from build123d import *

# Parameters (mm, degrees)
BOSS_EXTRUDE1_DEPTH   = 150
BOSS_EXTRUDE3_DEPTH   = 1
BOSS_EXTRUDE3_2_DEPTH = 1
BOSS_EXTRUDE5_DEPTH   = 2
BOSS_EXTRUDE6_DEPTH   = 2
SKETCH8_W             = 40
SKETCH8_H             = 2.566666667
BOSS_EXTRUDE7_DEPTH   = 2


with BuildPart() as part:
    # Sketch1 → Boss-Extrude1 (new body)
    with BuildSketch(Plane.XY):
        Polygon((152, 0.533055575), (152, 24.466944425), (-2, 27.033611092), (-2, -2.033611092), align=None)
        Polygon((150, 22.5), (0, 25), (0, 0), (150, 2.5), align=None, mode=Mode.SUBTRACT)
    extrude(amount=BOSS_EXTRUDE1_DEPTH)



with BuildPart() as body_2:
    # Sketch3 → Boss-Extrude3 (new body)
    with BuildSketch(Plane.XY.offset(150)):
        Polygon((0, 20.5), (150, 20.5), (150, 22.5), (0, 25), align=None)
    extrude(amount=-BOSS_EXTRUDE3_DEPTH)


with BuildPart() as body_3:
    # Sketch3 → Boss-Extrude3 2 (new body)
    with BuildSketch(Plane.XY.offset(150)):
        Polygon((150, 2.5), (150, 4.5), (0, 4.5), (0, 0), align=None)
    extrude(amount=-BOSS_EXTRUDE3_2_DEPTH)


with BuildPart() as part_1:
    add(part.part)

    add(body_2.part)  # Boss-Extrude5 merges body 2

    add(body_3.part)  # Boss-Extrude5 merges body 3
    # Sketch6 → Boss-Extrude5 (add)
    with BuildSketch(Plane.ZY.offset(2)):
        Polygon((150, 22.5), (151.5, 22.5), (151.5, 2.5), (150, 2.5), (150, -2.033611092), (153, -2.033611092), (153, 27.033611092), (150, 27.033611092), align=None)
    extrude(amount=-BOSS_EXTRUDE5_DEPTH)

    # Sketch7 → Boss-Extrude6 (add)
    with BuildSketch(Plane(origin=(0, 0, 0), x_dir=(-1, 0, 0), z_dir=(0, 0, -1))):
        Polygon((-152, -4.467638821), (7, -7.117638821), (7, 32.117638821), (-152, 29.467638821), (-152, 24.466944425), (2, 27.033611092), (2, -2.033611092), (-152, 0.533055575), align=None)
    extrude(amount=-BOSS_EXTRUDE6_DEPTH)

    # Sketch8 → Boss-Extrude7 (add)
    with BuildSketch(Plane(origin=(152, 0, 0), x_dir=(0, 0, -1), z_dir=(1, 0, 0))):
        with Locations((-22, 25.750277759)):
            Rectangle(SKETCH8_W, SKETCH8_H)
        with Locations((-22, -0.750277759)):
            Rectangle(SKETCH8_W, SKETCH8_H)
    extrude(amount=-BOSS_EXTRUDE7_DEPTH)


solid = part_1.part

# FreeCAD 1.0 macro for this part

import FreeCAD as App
import Part
import Sketcher

V = App.Vector

doc = App.newDocument("Part")
body = doc.addObject("PartDesign::Body", "Body")

# Sketch on XY plane
sketch1 = body.newObject("Sketcher::SketchObject", "Sketch")
sketch1.AttachmentSupport = (doc.getObject("XY_Plane"), [""])
sketch1.MapMode = "FlatFace"
sketch1.addGeometry(Part.LineSegment(V(152, 1, 0), V(152, 24, 0)), False)
sketch1.addGeometry(Part.LineSegment(V(152, 24, 0), V(-2, 27, 0)), False)
sketch1.addGeometry(Part.LineSegment(V(-2, 27, 0), V(-2, -2, 0)), False)
sketch1.addGeometry(Part.LineSegment(V(-2, -2, 0), V(152, 1, 0)), False)
sketch1.addGeometry(Part.LineSegment(V(0, 25, 0), V(150, 22, 0)), False)
sketch1.addGeometry(Part.LineSegment(V(150, 22, 0), V(150, 2, 0)), False)
sketch1.addGeometry(Part.LineSegment(V(150, 2, 0), V(0, 0, 0)), False)
sketch1.addGeometry(Part.LineSegment(V(0, 0, 0), V(0, 25, 0)), False)
sketch1.addConstraint(Sketcher.Constraint("Coincident", 0, 2, 1, 1))
sketch1.addConstraint(Sketcher.Constraint("Coincident", 1, 2, 2, 1))
sketch1.addConstraint(Sketcher.Constraint("Coincident", 2, 2, 3, 1))
sketch1.addConstraint(Sketcher.Constraint("Coincident", 3, 2, 0, 1))
sketch1.addConstraint(Sketcher.Constraint("Coincident", 4, 2, 5, 1))
sketch1.addConstraint(Sketcher.Constraint("Coincident", 5, 2, 6, 1))
sketch1.addConstraint(Sketcher.Constraint("Coincident", 6, 2, 7, 1))
sketch1.addConstraint(Sketcher.Constraint("Coincident", 7, 2, 4, 1))
sketch1.addConstraint(Sketcher.Constraint("Vertical", 0))
sketch1.addConstraint(Sketcher.Constraint("Vertical", 2))
sketch1.addConstraint(Sketcher.Constraint("Vertical", 5))
sketch1.addConstraint(Sketcher.Constraint("Vertical", 7))
sketch1.addConstraint(Sketcher.Constraint("Coincident", 6, 2, -1, 1))
sketch1.addConstraint(Sketcher.Constraint("Parallel", 1, 4))
sketch1.addConstraint(Sketcher.Constraint("Parallel", 3, 6))
sketch1.addConstraint(Sketcher.Constraint("Equal", 1, 3))
sketch1.addConstraint(Sketcher.Constraint("DistanceY", 5, 2, 5, 1, 20.0))
sketch1.addConstraint(Sketcher.Constraint("DistanceY", 7, 1, 7, 2, 25.0))
sketch1.addConstraint(Sketcher.Constraint("DistanceX", -1, 1, 0, 2, 152.0))
sketch1.addConstraint(Sketcher.Constraint("DistanceX", 1, 2, -1, 1, 2.0))
sketch1.addConstraint(Sketcher.Constraint("DistanceX", -1, 1, 4, 2, 150.0))
sketch1.addConstraint(Sketcher.Constraint("DistanceY", 0, 1, 0, 2, 23.933889))
sketch1.addConstraint(Sketcher.Constraint("DistanceY", -1, 1, 1, 2, 27.033611))
pad1 = body.newObject("PartDesign::Pad", "Pad")
pad1.Profile = sketch1
pad1.Length = 150
body2 = doc.addObject("PartDesign::Body", "Body001")

# Sketch on XY plane
sketch2 = body2.newObject("Sketcher::SketchObject", "Sketch001")
sketch2.AttachmentSupport = (doc.getObject("XY_Plane001"), [""])
sketch2.MapMode = "FlatFace"
sketch2.AttachmentOffset = App.Placement(V(0, 0, 150), App.Rotation())
sketch2.addGeometry(Part.LineSegment(V(0, 20.5, 0), V(150, 20.5, 0)), False)
sketch2.addGeometry(Part.LineSegment(V(150, 20.5, 0), V(150, 22.5, 0)), False)
sketch2.addGeometry(Part.LineSegment(V(150, 22.5, 0), V(0, 25, 0)), False)
sketch2.addGeometry(Part.LineSegment(V(0, 25, 0), V(0, 20.5, 0)), False)
sketch2.addConstraint(Sketcher.Constraint("Coincident", 0, 2, 1, 1))
sketch2.addConstraint(Sketcher.Constraint("Coincident", 1, 2, 2, 1))
sketch2.addConstraint(Sketcher.Constraint("Coincident", 2, 2, 3, 1))
sketch2.addConstraint(Sketcher.Constraint("Coincident", 3, 2, 0, 1))
sketch2.addConstraint(Sketcher.Constraint("Horizontal", 0))
sketch2.addConstraint(Sketcher.Constraint("Vertical", 1))
sketch2.addConstraint(Sketcher.Constraint("Vertical", 3))
sketch2.addConstraint(Sketcher.Constraint("PointOnObject", 2, 2, -2))
sketch2.addConstraint(Sketcher.Constraint("DistanceX", 0, 1, 0, 2, 150.0))
sketch2.addConstraint(Sketcher.Constraint("DistanceY", 1, 1, 1, 2, 2.0))
sketch2.addConstraint(Sketcher.Constraint("DistanceY", 3, 2, 3, 1, 4.5))
sketch2.addConstraint(Sketcher.Constraint("DistanceY", -1, 1, 2, 2, 25.0))
pad2 = body2.newObject("PartDesign::Pad", "Pad001")
pad2.Profile = sketch2
pad2.Length = 1
pad2.Reversed = True
body3 = doc.addObject("PartDesign::Body", "Body002")

# Sketch on XY plane
sketch3 = body3.newObject("Sketcher::SketchObject", "Sketch002")
sketch3.AttachmentSupport = (doc.getObject("XY_Plane002"), [""])
sketch3.MapMode = "FlatFace"
sketch3.AttachmentOffset = App.Placement(V(0, 0, 150), App.Rotation())
sketch3.addGeometry(Part.LineSegment(V(150, 2.5, 0), V(150, 4.5, 0)), False)
sketch3.addGeometry(Part.LineSegment(V(150, 4.5, 0), V(0, 4.5, 0)), False)
sketch3.addGeometry(Part.LineSegment(V(0, 4.5, 0), V(0, 0, 0)), False)
sketch3.addGeometry(Part.LineSegment(V(0, 0, 0), V(150, 2.5, 0)), False)
sketch3.addConstraint(Sketcher.Constraint("Coincident", 0, 2, 1, 1))
sketch3.addConstraint(Sketcher.Constraint("Coincident", 1, 2, 2, 1))
sketch3.addConstraint(Sketcher.Constraint("Coincident", 2, 2, 3, 1))
sketch3.addConstraint(Sketcher.Constraint("Coincident", 3, 2, 0, 1))
sketch3.addConstraint(Sketcher.Constraint("Vertical", 0))
sketch3.addConstraint(Sketcher.Constraint("Horizontal", 1))
sketch3.addConstraint(Sketcher.Constraint("Vertical", 2))
sketch3.addConstraint(Sketcher.Constraint("Coincident", 2, 2, -1, 1))
sketch3.addConstraint(Sketcher.Constraint("DistanceX", 1, 2, 1, 1, 150.0))
sketch3.addConstraint(Sketcher.Constraint("DistanceY", 0, 1, 0, 2, 2.0))
sketch3.addConstraint(Sketcher.Constraint("DistanceY", 2, 2, 2, 1, 4.5))
pad3 = body3.newObject("PartDesign::Pad", "Pad002")
pad3.Profile = sketch3
pad3.Length = 1
pad3.Reversed = True
doc.recompute()

boolean = body.newObject("PartDesign::Boolean", "Boolean")
boolean.Type = "Fuse"
boolean.addObjects([body2])
doc.recompute()

boolean2 = body.newObject("PartDesign::Boolean", "Boolean001")
boolean2.Type = "Fuse"
boolean2.addObjects([body3])

# Sketch on YZ plane
sketch4 = body.newObject("Sketcher::SketchObject", "Sketch003")
sketch4.AttachmentSupport = (doc.getObject("YZ_Plane"), [""])
sketch4.MapMode = "FlatFace"
sketch4.AttachmentOffset = App.Placement(V(0, 0, -2), App.Rotation())
sketch4.addGeometry(Part.LineSegment(V(22.5, 150, 0), V(22.5, 151.5, 0)), False)
sketch4.addGeometry(Part.LineSegment(V(22.5, 151.5, 0), V(2.5, 151.5, 0)), False)
sketch4.addGeometry(Part.LineSegment(V(2.5, 151.5, 0), V(2.5, 150, 0)), False)
sketch4.addGeometry(Part.LineSegment(V(2.5, 150, 0), V(-2, 150, 0)), False)
sketch4.addGeometry(Part.LineSegment(V(-2, 150, 0), V(-2, 153, 0)), False)
sketch4.addGeometry(Part.LineSegment(V(-2, 153, 0), V(27, 153, 0)), False)
sketch4.addGeometry(Part.LineSegment(V(27, 153, 0), V(27, 150, 0)), False)
sketch4.addGeometry(Part.LineSegment(V(27, 150, 0), V(22.5, 150, 0)), False)
sketch4.addConstraint(Sketcher.Constraint("Coincident", 0, 2, 1, 1))
sketch4.addConstraint(Sketcher.Constraint("Coincident", 1, 2, 2, 1))
sketch4.addConstraint(Sketcher.Constraint("Coincident", 2, 2, 3, 1))
sketch4.addConstraint(Sketcher.Constraint("Coincident", 3, 2, 4, 1))
sketch4.addConstraint(Sketcher.Constraint("Coincident", 4, 2, 5, 1))
sketch4.addConstraint(Sketcher.Constraint("Coincident", 5, 2, 6, 1))
sketch4.addConstraint(Sketcher.Constraint("Coincident", 6, 2, 7, 1))
sketch4.addConstraint(Sketcher.Constraint("Coincident", 7, 2, 0, 1))
sketch4.addConstraint(Sketcher.Constraint("Vertical", 0))
sketch4.addConstraint(Sketcher.Constraint("Horizontal", 1))
sketch4.addConstraint(Sketcher.Constraint("Vertical", 2))
sketch4.addConstraint(Sketcher.Constraint("Horizontal", 3))
sketch4.addConstraint(Sketcher.Constraint("Vertical", 4))
sketch4.addConstraint(Sketcher.Constraint("Horizontal", 5))
sketch4.addConstraint(Sketcher.Constraint("Vertical", 6))
sketch4.addConstraint(Sketcher.Constraint("Horizontal", 7))
sketch4.addConstraint(Sketcher.Constraint("Horizontal", 3, 2, 6, 2))
sketch4.addConstraint(Sketcher.Constraint("Equal", 3, 7))
sketch4.addConstraint(Sketcher.Constraint("DistanceX", 1, 2, 1, 1, 20.0))
sketch4.addConstraint(Sketcher.Constraint("DistanceY", 4, 1, 4, 2, 3.0))
sketch4.addConstraint(Sketcher.Constraint("DistanceY", 0, 1, 0, 2, 1.5))
sketch4.addConstraint(Sketcher.Constraint("DistanceY", -1, 1, 2, 2, 150.0))
sketch4.addConstraint(Sketcher.Constraint("DistanceX", -1, 1, 0, 2, 22.5))
sketch4.addConstraint(Sketcher.Constraint("DistanceX", 3, 2, 3, 1, 4.533611))
pad4 = body.newObject("PartDesign::Pad", "Pad003")
pad4.Profile = sketch4
pad4.Length = 2

# Sketch on XY plane
sketch5 = body.newObject("Sketcher::SketchObject", "Sketch004")
sketch5.AttachmentSupport = (doc.getObject("XY_Plane"), [""])
sketch5.MapMode = "FlatFace"
sketch5.addGeometry(Part.LineSegment(V(152, -4, 0), V(-7, -7, 0)), False)
sketch5.addGeometry(Part.LineSegment(V(-7, -7, 0), V(-7, 32, 0)), False)
sketch5.addGeometry(Part.LineSegment(V(-7, 32, 0), V(152, 29, 0)), False)
sketch5.addGeometry(Part.LineSegment(V(152, 29, 0), V(152, 24, 0)), False)
sketch5.addGeometry(Part.LineSegment(V(152, 24, 0), V(-2, 27, 0)), False)
sketch5.addGeometry(Part.LineSegment(V(-2, 27, 0), V(-2, -2, 0)), False)
sketch5.addGeometry(Part.LineSegment(V(-2, -2, 0), V(152, 1, 0)), False)
sketch5.addGeometry(Part.LineSegment(V(152, 1, 0), V(152, -4, 0)), False)
sketch5.addConstraint(Sketcher.Constraint("Coincident", 0, 2, 1, 1))
sketch5.addConstraint(Sketcher.Constraint("Coincident", 1, 2, 2, 1))
sketch5.addConstraint(Sketcher.Constraint("Coincident", 2, 2, 3, 1))
sketch5.addConstraint(Sketcher.Constraint("Coincident", 3, 2, 4, 1))
sketch5.addConstraint(Sketcher.Constraint("Coincident", 4, 2, 5, 1))
sketch5.addConstraint(Sketcher.Constraint("Coincident", 5, 2, 6, 1))
sketch5.addConstraint(Sketcher.Constraint("Coincident", 6, 2, 7, 1))
sketch5.addConstraint(Sketcher.Constraint("Coincident", 7, 2, 0, 1))
sketch5.addConstraint(Sketcher.Constraint("Vertical", 1))
sketch5.addConstraint(Sketcher.Constraint("Vertical", 3))
sketch5.addConstraint(Sketcher.Constraint("Vertical", 5))
sketch5.addConstraint(Sketcher.Constraint("Vertical", 7))
sketch5.addConstraint(Sketcher.Constraint("Parallel", 2, 4))
sketch5.addConstraint(Sketcher.Constraint("Parallel", 0, 6))
sketch5.addConstraint(Sketcher.Constraint("Vertical", 3, 2, 6, 2))
sketch5.addConstraint(Sketcher.Constraint("Equal", 3, 7))
sketch5.addConstraint(Sketcher.Constraint("Equal", 0, 2))
sketch5.addConstraint(Sketcher.Constraint("DistanceX", 0, 2, -1, 1, 7.0))
sketch5.addConstraint(Sketcher.Constraint("DistanceX", -1, 1, 2, 2, 152.0))
sketch5.addConstraint(Sketcher.Constraint("DistanceX", 4, 2, -1, 1, 2.0))
sketch5.addConstraint(Sketcher.Constraint("DistanceY", 2, 2, 1, 2, 2.65))
sketch5.addConstraint(Sketcher.Constraint("DistanceY", 1, 1, 1, 2, 39.235278))
sketch5.addConstraint(Sketcher.Constraint("DistanceY", 3, 2, 3, 1, 5.000694))
sketch5.addConstraint(Sketcher.Constraint("DistanceY", 0, 2, -1, 1, 7.117639))
pad5 = body.newObject("PartDesign::Pad", "Pad004")
pad5.Profile = sketch5
pad5.Length = 2

# Sketch on YZ plane
sketch6 = body.newObject("Sketcher::SketchObject", "Sketch005")
sketch6.AttachmentSupport = (doc.getObject("YZ_Plane"), [""])
sketch6.MapMode = "FlatFace"
sketch6.AttachmentOffset = App.Placement(V(0, 0, 152), App.Rotation())
sketch6.addGeometry(Part.LineSegment(V(27, 42, 0), V(24.5, 42, 0)), False)
sketch6.addGeometry(Part.LineSegment(V(24.5, 42, 0), V(24.5, 2, 0)), False)
sketch6.addGeometry(Part.LineSegment(V(24.5, 2, 0), V(27, 2, 0)), False)
sketch6.addGeometry(Part.LineSegment(V(27, 2, 0), V(27, 42, 0)), False)
sketch6.addGeometry(Part.LineSegment(V(0.5, 42, 0), V(-2, 42, 0)), False)
sketch6.addGeometry(Part.LineSegment(V(-2, 42, 0), V(-2, 2, 0)), False)
sketch6.addGeometry(Part.LineSegment(V(-2, 2, 0), V(0.5, 2, 0)), False)
sketch6.addGeometry(Part.LineSegment(V(0.5, 2, 0), V(0.5, 42, 0)), False)
sketch6.addConstraint(Sketcher.Constraint("Coincident", 0, 2, 1, 1))
sketch6.addConstraint(Sketcher.Constraint("Coincident", 1, 2, 2, 1))
sketch6.addConstraint(Sketcher.Constraint("Coincident", 2, 2, 3, 1))
sketch6.addConstraint(Sketcher.Constraint("Coincident", 3, 2, 0, 1))
sketch6.addConstraint(Sketcher.Constraint("Coincident", 4, 2, 5, 1))
sketch6.addConstraint(Sketcher.Constraint("Coincident", 5, 2, 6, 1))
sketch6.addConstraint(Sketcher.Constraint("Coincident", 6, 2, 7, 1))
sketch6.addConstraint(Sketcher.Constraint("Coincident", 7, 2, 4, 1))
sketch6.addConstraint(Sketcher.Constraint("Horizontal", 0))
sketch6.addConstraint(Sketcher.Constraint("Vertical", 1))
sketch6.addConstraint(Sketcher.Constraint("Horizontal", 2))
sketch6.addConstraint(Sketcher.Constraint("Vertical", 3))
sketch6.addConstraint(Sketcher.Constraint("Horizontal", 4))
sketch6.addConstraint(Sketcher.Constraint("Vertical", 5))
sketch6.addConstraint(Sketcher.Constraint("Horizontal", 6))
sketch6.addConstraint(Sketcher.Constraint("Vertical", 7))
sketch6.addConstraint(Sketcher.Constraint("Horizontal", 3, 2, 4, 2))
sketch6.addConstraint(Sketcher.Constraint("Horizontal", 2, 2, 5, 2))
sketch6.addConstraint(Sketcher.Constraint("Equal", 2, 4))
sketch6.addConstraint(Sketcher.Constraint("DistanceY", 1, 2, 1, 1, 40.0))
sketch6.addConstraint(Sketcher.Constraint("DistanceY", -1, 1, 0, 2, 42.0))
sketch6.addConstraint(Sketcher.Constraint("DistanceX", 0, 2, 0, 1, 2.566667))
sketch6.addConstraint(Sketcher.Constraint("DistanceX", -1, 1, 2, 2, 27.033611))
sketch6.addConstraint(Sketcher.Constraint("DistanceX", 4, 2, -1, 1, 2.033611))
pad6 = body.newObject("PartDesign::Pad", "Pad005")
pad6.Profile = sketch6
pad6.Length = 2
pad6.Reversed = True

doc.recompute()
